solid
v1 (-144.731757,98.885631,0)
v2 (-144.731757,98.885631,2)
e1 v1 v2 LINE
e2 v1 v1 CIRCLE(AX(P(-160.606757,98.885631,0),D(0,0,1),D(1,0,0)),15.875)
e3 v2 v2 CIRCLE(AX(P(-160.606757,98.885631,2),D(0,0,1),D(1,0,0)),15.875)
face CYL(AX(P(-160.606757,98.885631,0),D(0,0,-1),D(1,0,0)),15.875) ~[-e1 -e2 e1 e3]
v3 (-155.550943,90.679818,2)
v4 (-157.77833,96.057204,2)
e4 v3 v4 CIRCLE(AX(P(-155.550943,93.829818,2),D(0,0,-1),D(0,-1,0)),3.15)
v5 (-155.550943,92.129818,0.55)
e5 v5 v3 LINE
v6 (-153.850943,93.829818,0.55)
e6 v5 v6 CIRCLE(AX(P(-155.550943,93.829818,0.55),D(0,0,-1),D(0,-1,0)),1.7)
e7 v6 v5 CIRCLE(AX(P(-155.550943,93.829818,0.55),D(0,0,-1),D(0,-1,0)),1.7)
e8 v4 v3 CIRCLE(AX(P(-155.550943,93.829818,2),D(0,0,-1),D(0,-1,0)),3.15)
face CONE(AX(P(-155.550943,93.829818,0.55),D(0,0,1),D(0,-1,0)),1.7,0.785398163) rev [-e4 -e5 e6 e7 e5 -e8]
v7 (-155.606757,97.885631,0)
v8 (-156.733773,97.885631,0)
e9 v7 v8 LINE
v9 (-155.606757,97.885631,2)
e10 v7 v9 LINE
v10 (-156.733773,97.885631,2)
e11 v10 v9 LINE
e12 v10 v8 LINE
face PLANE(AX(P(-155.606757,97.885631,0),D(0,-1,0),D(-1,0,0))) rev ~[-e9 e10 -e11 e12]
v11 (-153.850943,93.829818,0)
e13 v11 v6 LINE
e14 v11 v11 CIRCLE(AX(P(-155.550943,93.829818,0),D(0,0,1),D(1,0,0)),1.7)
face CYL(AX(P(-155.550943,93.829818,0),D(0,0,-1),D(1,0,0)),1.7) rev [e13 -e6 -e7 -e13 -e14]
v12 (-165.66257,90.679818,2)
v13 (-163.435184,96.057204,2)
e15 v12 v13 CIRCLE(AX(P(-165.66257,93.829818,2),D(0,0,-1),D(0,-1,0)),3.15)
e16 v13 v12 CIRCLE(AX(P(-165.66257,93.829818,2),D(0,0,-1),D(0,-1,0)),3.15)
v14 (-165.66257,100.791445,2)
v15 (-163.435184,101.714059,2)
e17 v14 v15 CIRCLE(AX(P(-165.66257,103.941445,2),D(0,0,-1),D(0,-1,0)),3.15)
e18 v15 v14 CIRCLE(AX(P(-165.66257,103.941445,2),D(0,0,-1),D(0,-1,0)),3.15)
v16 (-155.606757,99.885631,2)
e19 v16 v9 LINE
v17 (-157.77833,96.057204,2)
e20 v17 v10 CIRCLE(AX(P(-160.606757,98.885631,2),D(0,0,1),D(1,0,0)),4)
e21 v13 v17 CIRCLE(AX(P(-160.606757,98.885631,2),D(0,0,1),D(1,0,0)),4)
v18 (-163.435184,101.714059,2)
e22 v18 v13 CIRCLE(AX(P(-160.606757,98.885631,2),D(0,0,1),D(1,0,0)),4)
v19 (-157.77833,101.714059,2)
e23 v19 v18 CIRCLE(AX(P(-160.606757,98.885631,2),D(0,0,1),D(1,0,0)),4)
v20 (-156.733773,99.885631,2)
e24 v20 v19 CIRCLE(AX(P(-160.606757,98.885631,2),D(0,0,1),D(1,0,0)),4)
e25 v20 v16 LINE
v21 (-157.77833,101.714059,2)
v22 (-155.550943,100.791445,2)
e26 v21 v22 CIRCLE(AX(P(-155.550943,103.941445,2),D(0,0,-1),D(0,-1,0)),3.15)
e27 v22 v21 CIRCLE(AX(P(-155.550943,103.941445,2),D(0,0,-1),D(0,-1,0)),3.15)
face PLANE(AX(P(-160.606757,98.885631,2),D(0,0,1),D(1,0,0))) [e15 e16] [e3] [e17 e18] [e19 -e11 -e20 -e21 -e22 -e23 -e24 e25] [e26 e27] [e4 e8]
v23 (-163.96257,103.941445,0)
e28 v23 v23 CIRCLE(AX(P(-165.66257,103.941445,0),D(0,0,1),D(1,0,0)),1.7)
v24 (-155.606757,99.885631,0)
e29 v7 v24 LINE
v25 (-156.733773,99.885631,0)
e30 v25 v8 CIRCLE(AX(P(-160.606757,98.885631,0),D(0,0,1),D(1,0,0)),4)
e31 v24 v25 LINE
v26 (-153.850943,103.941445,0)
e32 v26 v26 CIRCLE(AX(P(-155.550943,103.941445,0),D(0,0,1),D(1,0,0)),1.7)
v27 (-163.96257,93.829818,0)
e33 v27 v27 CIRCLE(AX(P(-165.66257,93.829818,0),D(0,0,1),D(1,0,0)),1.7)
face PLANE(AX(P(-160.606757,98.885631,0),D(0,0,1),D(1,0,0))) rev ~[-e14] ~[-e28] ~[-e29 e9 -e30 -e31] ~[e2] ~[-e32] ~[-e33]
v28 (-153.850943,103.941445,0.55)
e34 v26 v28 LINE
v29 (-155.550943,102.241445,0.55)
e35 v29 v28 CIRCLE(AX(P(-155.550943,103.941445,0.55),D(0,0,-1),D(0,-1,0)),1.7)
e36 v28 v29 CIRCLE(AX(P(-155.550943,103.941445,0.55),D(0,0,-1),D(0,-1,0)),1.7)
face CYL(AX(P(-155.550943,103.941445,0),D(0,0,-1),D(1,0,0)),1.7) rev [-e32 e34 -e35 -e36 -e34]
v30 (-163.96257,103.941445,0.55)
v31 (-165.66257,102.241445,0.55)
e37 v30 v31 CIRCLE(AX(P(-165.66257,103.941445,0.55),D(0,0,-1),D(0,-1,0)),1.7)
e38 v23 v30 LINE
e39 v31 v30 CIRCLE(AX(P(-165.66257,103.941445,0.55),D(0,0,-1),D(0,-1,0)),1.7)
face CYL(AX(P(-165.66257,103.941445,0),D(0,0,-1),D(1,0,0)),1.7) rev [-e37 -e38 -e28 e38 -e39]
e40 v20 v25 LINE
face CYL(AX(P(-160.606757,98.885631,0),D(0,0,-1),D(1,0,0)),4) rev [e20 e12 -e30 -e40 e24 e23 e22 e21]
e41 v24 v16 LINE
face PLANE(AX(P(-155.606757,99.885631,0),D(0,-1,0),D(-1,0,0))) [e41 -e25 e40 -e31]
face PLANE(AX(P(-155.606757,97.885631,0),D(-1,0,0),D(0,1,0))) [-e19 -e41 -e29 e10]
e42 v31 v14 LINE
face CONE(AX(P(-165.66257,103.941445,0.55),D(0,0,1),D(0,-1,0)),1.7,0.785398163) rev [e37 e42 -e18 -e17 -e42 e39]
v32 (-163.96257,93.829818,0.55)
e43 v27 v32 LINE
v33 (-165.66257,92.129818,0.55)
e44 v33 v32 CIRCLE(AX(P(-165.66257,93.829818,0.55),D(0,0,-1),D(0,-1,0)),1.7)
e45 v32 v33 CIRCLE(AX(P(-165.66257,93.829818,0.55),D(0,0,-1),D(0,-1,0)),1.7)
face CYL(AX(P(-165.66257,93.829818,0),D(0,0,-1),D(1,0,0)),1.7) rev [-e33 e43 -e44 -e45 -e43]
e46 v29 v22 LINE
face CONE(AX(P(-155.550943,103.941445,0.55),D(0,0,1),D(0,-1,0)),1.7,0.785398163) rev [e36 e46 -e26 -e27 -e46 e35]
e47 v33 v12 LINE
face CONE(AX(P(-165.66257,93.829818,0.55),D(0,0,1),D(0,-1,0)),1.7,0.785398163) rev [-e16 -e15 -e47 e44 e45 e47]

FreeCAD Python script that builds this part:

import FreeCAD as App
import Part
import Sketcher
Q = App.Units.Quantity

doc = App.newDocument("Part")
body = doc.addObject("PartDesign::Body", "Body")

sketch1 = doc.addObject("Sketcher::SketchObject", "Sketch")
body.addObject(sketch1)
sketch1.AttachmentSupport = (doc.XY_Plane, [""])
sketch1.MapMode = "FlatFace"
sketch1.addGeometry(Part.Circle(App.Vector(-160.606757, 98.885631, 0), App.Vector(0, 0, 1), 15.875), False)
sketch1.addGeometry(Part.Circle(App.Vector(-165.66257, 93.829818, 0), App.Vector(0, 0, 1), 1.7), False)
sketch1.addGeometry(Part.Circle(App.Vector(-155.550943, 93.829818, 0), App.Vector(0, 0, 1), 1.7), False)
sketch1.addGeometry(Part.Circle(App.Vector(-165.66257, 103.941445, 0), App.Vector(0, 0, 1), 1.7), False)
sketch1.addGeometry(Part.Circle(App.Vector(-160.606757, 98.885631, 0), App.Vector(0, 0, 1), 4), False)
sketch1.addGeometry(Part.Circle(App.Vector(-155.550943, 103.941445, 0), App.Vector(0, 0, 1), 1.7), False)
sketch1.addConstraint(Sketcher.Constraint("Coincident", 4, 3, 0, 3))
sketch1.addConstraint(Sketcher.Constraint("Equal", 1, 2))
sketch1.addConstraint(Sketcher.Constraint("Equal", 2, 3))
sketch1.addConstraint(Sketcher.Constraint("Equal", 3, 5))
sketch1.addConstraint(Sketcher.Constraint("Horizontal", 1, 3, 2, 3))
sketch1.addConstraint(Sketcher.Constraint("Horizontal", 3, 3, 5, 3))
sketch1.addConstraint(Sketcher.Constraint("Vertical", 1, 3, 3, 3))
sketch1.addConstraint(Sketcher.Constraint("Vertical", 2, 3, 5, 3))
sketch1.addConstraint(Sketcher.Constraint("Diameter", 4, Q("8 mm")))
sketch1.addConstraint(Sketcher.Constraint("Diameter", 1, Q("3.4 mm")))
sketch1.addConstraint(Sketcher.Constraint("Diameter", 0, Q("31.75 mm")))
sketch1.addConstraint(Sketcher.Constraint("DistanceY", -1, 1, 0, 3, Q("98.885631 mm")))
sketch1.addConstraint(Sketcher.Constraint("DistanceX", 1, 3, -1, 1, Q("165.66257 mm")))
sketch1.addConstraint(Sketcher.Constraint("DistanceX", 0, 3, -1, 1, Q("160.606757 mm")))
sketch1.addConstraint(Sketcher.Constraint("DistanceY", -1, 1, 1, 3, Q("93.829818 mm")))
sketch1.addConstraint(Sketcher.Constraint("DistanceX", 2, 3, -1, 1, Q("155.550943 mm")))
sketch1.addConstraint(Sketcher.Constraint("DistanceY", -1, 1, 3, 3, Q("103.941445 mm")))
pad1 = doc.addObject("PartDesign::Pad", "Pad")
body.addObject(pad1)
pad1.Profile = sketch1
pad1.Length = 2

sketch2 = doc.addObject("Sketcher::SketchObject", "Sketch001")
body.addObject(sketch2)
sketch2.AttachmentSupport = (doc.YZ_Plane, [""])
sketch2.MapMode = "FlatFace"
sketch2.AttachmentOffset = App.Placement(App.Vector(0, 0, -165.66257), App.Rotation())
sketch2.addGeometry(Part.LineSegment(App.Vector(103.941445, 0, 0), App.Vector(103.941445, 2, 0)), False)
sketch2.addGeometry(Part.LineSegment(App.Vector(103.941445, 2, 0), App.Vector(100.791445, 2, 0)), False)
sketch2.addGeometry(Part.LineSegment(App.Vector(100.791445, 2, 0), App.Vector(102.241445, 0.55, 0)), False)
sketch2.addGeometry(Part.LineSegment(App.Vector(102.241445, 0.55, 0), App.Vector(102.241445, 0, 0)), False)
sketch2.addGeometry(Part.LineSegment(App.Vector(102.241445, 0, 0), App.Vector(103.941445, 0, 0)), False)
sketch2.addGeometry(Part.LineSegment(App.Vector(103.941445, 2, 0), App.Vector(103.941445, 0, 0)), True)
sketch2.addConstraint(Sketcher.Constraint("Coincident", 0, 2, 1, 1))
sketch2.addConstraint(Sketcher.Constraint("Coincident", 1, 2, 2, 1))
sketch2.addConstraint(Sketcher.Constraint("Coincident", 2, 2, 3, 1))
sketch2.addConstraint(Sketcher.Constraint("Coincident", 3, 2, 4, 1))
sketch2.addConstraint(Sketcher.Constraint("Coincident", 4, 2, 0, 1))
sketch2.addConstraint(Sketcher.Constraint("Vertical", 0))
sketch2.addConstraint(Sketcher.Constraint("Horizontal", 1))
sketch2.addConstraint(Sketcher.Constraint("Vertical", 3))
sketch2.addConstraint(Sketcher.Constraint("Horizontal", 4))
sketch2.addConstraint(Sketcher.Constraint("Vertical", 5))
sketch2.addConstraint(Sketcher.Constraint("Coincident", 5, 1, 0, 2))
sketch2.addConstraint(Sketcher.Constraint("PointOnObject", 3, 2, -1))
sketch2.addConstraint(Sketcher.Constraint("PointOnObject", 5, 2, -1))
sketch2.addConstraint(Sketcher.Constraint("DistanceY", 0, 1, 0, 2, Q("2 mm")))
sketch2.addConstraint(Sketcher.Constraint("Angle", 2, Q("-45 deg")))
sketch2.addConstraint(Sketcher.Constraint("DistanceX", 4, 1, 4, 2, Q("1.7 mm")))
sketch2.addConstraint(Sketcher.Constraint("DistanceX", 1, 2, 1, 1, Q("3.15 mm")))
sketch2.addConstraint(Sketcher.Constraint("DistanceX", -1, 1, 0, 2, Q("103.941445 mm")))
groove = doc.addObject("PartDesign::Groove", "Groove")
body.addObject(groove)
groove.Profile = sketch2
groove.ReferenceAxis = (sketch2, ["Axis0"])
groove.Angle = 360
doc.recompute()

linearpattern = doc.addObject("PartDesign::LinearPattern", "LinearPattern")
body.addObject(linearpattern)
linearpattern.Originals = [groove]
linearpattern.Direction = (doc.X_Axis, [""])
linearpattern.Mode = "offset"
linearpattern.Offset = 10.111627
linearpattern.Occurrences = 2
body.Tip = linearpattern
doc.recompute()

datumline = doc.addObject("PartDesign::Line", "DatumLine")
body.addObject(datumline)
datumline.Placement = App.Placement(App.Vector(0, 0, 0), App.Rotation(App.Vector(0, 0, 1), App.Vector(0.707106781, -0.707106781, 0)))
linearpattern2 = doc.addObject("PartDesign::LinearPattern", "LinearPattern001")
body.addObject(linearpattern2)
linearpattern2.Originals = [groove]
linearpattern2.Direction = (datumline, [""])
linearpattern2.Mode = "offset"
linearpattern2.Offset = 14.3
linearpattern2.Occurrences = 2
body.Tip = linearpattern2
doc.recompute()

linearpattern3 = doc.addObject("PartDesign::LinearPattern", "LinearPattern002")
body.addObject(linearpattern3)
linearpattern3.Originals = [groove]
linearpattern3.Direction = (doc.Y_Axis, [""])
linearpattern3.Mode = "offset"
linearpattern3.Offset = 10.111627
linearpattern3.Occurrences = 2
linearpattern3.Reversed = True
body.Tip = linearpattern3

sketch3 = doc.addObject("Sketcher::SketchObject", "Sketch002")
body.addObject(sketch3)
sketch3.AttachmentSupport = (doc.XY_Plane, [""])
sketch3.MapMode = "FlatFace"
sketch3.addGeometry(Part.LineSegment(App.Vector(-155.606757, 99.885631, 0), App.Vector(-155.606757, 97.885631, 0)), False)
sketch3.addGeometry(Part.LineSegment(App.Vector(-155.606757, 97.885631, 0), App.Vector(-156.921229, 97.885631, 0)), False)
sketch3.addGeometry(Part.LineSegment(App.Vector(-156.921229, 97.885631, 0), App.Vector(-156.921229, 99.885631, 0)), False)
sketch3.addGeometry(Part.LineSegment(App.Vector(-156.921229, 99.885631, 0), App.Vector(-155.606757, 99.885631, 0)), False)
sketch3.addConstraint(Sketcher.Constraint("Coincident", 0, 2, 1, 1))
sketch3.addConstraint(Sketcher.Constraint("Coincident", 1, 2, 2, 1))
sketch3.addConstraint(Sketcher.Constraint("Coincident", 2, 2, 3, 1))
sketch3.addConstraint(Sketcher.Constraint("Coincident", 3, 2, 0, 1))
sketch3.addConstraint(Sketcher.Constraint("Vertical", 0))
sketch3.addConstraint(Sketcher.Constraint("Horizontal", 1))
sketch3.addConstraint(Sketcher.Constraint("Vertical", 2))
sketch3.addConstraint(Sketcher.Constraint("Horizontal", 3))
sketch3.addConstraint(Sketcher.Constraint("DistanceY", 0, 2, 0, 1, Q("2 mm")))
sketch3.addConstraint(Sketcher.Constraint("DistanceX", 1, 2, 1, 1, Q("1.314472 mm")))
sketch3.addConstraint(Sketcher.Constraint("DistanceY", -1, 1, 0, 2, Q("97.885631 mm")))
sketch3.addConstraint(Sketcher.Constraint("DistanceX", 1, 2, -1, 1, Q("156.921229 mm")))
pocket1 = doc.addObject("PartDesign::Pocket", "Pocket")
body.addObject(pocket1)
pocket1.Profile = sketch3
pocket1.Type = "ThroughAll"
pocket1.Reversed = True

doc.recompute()
